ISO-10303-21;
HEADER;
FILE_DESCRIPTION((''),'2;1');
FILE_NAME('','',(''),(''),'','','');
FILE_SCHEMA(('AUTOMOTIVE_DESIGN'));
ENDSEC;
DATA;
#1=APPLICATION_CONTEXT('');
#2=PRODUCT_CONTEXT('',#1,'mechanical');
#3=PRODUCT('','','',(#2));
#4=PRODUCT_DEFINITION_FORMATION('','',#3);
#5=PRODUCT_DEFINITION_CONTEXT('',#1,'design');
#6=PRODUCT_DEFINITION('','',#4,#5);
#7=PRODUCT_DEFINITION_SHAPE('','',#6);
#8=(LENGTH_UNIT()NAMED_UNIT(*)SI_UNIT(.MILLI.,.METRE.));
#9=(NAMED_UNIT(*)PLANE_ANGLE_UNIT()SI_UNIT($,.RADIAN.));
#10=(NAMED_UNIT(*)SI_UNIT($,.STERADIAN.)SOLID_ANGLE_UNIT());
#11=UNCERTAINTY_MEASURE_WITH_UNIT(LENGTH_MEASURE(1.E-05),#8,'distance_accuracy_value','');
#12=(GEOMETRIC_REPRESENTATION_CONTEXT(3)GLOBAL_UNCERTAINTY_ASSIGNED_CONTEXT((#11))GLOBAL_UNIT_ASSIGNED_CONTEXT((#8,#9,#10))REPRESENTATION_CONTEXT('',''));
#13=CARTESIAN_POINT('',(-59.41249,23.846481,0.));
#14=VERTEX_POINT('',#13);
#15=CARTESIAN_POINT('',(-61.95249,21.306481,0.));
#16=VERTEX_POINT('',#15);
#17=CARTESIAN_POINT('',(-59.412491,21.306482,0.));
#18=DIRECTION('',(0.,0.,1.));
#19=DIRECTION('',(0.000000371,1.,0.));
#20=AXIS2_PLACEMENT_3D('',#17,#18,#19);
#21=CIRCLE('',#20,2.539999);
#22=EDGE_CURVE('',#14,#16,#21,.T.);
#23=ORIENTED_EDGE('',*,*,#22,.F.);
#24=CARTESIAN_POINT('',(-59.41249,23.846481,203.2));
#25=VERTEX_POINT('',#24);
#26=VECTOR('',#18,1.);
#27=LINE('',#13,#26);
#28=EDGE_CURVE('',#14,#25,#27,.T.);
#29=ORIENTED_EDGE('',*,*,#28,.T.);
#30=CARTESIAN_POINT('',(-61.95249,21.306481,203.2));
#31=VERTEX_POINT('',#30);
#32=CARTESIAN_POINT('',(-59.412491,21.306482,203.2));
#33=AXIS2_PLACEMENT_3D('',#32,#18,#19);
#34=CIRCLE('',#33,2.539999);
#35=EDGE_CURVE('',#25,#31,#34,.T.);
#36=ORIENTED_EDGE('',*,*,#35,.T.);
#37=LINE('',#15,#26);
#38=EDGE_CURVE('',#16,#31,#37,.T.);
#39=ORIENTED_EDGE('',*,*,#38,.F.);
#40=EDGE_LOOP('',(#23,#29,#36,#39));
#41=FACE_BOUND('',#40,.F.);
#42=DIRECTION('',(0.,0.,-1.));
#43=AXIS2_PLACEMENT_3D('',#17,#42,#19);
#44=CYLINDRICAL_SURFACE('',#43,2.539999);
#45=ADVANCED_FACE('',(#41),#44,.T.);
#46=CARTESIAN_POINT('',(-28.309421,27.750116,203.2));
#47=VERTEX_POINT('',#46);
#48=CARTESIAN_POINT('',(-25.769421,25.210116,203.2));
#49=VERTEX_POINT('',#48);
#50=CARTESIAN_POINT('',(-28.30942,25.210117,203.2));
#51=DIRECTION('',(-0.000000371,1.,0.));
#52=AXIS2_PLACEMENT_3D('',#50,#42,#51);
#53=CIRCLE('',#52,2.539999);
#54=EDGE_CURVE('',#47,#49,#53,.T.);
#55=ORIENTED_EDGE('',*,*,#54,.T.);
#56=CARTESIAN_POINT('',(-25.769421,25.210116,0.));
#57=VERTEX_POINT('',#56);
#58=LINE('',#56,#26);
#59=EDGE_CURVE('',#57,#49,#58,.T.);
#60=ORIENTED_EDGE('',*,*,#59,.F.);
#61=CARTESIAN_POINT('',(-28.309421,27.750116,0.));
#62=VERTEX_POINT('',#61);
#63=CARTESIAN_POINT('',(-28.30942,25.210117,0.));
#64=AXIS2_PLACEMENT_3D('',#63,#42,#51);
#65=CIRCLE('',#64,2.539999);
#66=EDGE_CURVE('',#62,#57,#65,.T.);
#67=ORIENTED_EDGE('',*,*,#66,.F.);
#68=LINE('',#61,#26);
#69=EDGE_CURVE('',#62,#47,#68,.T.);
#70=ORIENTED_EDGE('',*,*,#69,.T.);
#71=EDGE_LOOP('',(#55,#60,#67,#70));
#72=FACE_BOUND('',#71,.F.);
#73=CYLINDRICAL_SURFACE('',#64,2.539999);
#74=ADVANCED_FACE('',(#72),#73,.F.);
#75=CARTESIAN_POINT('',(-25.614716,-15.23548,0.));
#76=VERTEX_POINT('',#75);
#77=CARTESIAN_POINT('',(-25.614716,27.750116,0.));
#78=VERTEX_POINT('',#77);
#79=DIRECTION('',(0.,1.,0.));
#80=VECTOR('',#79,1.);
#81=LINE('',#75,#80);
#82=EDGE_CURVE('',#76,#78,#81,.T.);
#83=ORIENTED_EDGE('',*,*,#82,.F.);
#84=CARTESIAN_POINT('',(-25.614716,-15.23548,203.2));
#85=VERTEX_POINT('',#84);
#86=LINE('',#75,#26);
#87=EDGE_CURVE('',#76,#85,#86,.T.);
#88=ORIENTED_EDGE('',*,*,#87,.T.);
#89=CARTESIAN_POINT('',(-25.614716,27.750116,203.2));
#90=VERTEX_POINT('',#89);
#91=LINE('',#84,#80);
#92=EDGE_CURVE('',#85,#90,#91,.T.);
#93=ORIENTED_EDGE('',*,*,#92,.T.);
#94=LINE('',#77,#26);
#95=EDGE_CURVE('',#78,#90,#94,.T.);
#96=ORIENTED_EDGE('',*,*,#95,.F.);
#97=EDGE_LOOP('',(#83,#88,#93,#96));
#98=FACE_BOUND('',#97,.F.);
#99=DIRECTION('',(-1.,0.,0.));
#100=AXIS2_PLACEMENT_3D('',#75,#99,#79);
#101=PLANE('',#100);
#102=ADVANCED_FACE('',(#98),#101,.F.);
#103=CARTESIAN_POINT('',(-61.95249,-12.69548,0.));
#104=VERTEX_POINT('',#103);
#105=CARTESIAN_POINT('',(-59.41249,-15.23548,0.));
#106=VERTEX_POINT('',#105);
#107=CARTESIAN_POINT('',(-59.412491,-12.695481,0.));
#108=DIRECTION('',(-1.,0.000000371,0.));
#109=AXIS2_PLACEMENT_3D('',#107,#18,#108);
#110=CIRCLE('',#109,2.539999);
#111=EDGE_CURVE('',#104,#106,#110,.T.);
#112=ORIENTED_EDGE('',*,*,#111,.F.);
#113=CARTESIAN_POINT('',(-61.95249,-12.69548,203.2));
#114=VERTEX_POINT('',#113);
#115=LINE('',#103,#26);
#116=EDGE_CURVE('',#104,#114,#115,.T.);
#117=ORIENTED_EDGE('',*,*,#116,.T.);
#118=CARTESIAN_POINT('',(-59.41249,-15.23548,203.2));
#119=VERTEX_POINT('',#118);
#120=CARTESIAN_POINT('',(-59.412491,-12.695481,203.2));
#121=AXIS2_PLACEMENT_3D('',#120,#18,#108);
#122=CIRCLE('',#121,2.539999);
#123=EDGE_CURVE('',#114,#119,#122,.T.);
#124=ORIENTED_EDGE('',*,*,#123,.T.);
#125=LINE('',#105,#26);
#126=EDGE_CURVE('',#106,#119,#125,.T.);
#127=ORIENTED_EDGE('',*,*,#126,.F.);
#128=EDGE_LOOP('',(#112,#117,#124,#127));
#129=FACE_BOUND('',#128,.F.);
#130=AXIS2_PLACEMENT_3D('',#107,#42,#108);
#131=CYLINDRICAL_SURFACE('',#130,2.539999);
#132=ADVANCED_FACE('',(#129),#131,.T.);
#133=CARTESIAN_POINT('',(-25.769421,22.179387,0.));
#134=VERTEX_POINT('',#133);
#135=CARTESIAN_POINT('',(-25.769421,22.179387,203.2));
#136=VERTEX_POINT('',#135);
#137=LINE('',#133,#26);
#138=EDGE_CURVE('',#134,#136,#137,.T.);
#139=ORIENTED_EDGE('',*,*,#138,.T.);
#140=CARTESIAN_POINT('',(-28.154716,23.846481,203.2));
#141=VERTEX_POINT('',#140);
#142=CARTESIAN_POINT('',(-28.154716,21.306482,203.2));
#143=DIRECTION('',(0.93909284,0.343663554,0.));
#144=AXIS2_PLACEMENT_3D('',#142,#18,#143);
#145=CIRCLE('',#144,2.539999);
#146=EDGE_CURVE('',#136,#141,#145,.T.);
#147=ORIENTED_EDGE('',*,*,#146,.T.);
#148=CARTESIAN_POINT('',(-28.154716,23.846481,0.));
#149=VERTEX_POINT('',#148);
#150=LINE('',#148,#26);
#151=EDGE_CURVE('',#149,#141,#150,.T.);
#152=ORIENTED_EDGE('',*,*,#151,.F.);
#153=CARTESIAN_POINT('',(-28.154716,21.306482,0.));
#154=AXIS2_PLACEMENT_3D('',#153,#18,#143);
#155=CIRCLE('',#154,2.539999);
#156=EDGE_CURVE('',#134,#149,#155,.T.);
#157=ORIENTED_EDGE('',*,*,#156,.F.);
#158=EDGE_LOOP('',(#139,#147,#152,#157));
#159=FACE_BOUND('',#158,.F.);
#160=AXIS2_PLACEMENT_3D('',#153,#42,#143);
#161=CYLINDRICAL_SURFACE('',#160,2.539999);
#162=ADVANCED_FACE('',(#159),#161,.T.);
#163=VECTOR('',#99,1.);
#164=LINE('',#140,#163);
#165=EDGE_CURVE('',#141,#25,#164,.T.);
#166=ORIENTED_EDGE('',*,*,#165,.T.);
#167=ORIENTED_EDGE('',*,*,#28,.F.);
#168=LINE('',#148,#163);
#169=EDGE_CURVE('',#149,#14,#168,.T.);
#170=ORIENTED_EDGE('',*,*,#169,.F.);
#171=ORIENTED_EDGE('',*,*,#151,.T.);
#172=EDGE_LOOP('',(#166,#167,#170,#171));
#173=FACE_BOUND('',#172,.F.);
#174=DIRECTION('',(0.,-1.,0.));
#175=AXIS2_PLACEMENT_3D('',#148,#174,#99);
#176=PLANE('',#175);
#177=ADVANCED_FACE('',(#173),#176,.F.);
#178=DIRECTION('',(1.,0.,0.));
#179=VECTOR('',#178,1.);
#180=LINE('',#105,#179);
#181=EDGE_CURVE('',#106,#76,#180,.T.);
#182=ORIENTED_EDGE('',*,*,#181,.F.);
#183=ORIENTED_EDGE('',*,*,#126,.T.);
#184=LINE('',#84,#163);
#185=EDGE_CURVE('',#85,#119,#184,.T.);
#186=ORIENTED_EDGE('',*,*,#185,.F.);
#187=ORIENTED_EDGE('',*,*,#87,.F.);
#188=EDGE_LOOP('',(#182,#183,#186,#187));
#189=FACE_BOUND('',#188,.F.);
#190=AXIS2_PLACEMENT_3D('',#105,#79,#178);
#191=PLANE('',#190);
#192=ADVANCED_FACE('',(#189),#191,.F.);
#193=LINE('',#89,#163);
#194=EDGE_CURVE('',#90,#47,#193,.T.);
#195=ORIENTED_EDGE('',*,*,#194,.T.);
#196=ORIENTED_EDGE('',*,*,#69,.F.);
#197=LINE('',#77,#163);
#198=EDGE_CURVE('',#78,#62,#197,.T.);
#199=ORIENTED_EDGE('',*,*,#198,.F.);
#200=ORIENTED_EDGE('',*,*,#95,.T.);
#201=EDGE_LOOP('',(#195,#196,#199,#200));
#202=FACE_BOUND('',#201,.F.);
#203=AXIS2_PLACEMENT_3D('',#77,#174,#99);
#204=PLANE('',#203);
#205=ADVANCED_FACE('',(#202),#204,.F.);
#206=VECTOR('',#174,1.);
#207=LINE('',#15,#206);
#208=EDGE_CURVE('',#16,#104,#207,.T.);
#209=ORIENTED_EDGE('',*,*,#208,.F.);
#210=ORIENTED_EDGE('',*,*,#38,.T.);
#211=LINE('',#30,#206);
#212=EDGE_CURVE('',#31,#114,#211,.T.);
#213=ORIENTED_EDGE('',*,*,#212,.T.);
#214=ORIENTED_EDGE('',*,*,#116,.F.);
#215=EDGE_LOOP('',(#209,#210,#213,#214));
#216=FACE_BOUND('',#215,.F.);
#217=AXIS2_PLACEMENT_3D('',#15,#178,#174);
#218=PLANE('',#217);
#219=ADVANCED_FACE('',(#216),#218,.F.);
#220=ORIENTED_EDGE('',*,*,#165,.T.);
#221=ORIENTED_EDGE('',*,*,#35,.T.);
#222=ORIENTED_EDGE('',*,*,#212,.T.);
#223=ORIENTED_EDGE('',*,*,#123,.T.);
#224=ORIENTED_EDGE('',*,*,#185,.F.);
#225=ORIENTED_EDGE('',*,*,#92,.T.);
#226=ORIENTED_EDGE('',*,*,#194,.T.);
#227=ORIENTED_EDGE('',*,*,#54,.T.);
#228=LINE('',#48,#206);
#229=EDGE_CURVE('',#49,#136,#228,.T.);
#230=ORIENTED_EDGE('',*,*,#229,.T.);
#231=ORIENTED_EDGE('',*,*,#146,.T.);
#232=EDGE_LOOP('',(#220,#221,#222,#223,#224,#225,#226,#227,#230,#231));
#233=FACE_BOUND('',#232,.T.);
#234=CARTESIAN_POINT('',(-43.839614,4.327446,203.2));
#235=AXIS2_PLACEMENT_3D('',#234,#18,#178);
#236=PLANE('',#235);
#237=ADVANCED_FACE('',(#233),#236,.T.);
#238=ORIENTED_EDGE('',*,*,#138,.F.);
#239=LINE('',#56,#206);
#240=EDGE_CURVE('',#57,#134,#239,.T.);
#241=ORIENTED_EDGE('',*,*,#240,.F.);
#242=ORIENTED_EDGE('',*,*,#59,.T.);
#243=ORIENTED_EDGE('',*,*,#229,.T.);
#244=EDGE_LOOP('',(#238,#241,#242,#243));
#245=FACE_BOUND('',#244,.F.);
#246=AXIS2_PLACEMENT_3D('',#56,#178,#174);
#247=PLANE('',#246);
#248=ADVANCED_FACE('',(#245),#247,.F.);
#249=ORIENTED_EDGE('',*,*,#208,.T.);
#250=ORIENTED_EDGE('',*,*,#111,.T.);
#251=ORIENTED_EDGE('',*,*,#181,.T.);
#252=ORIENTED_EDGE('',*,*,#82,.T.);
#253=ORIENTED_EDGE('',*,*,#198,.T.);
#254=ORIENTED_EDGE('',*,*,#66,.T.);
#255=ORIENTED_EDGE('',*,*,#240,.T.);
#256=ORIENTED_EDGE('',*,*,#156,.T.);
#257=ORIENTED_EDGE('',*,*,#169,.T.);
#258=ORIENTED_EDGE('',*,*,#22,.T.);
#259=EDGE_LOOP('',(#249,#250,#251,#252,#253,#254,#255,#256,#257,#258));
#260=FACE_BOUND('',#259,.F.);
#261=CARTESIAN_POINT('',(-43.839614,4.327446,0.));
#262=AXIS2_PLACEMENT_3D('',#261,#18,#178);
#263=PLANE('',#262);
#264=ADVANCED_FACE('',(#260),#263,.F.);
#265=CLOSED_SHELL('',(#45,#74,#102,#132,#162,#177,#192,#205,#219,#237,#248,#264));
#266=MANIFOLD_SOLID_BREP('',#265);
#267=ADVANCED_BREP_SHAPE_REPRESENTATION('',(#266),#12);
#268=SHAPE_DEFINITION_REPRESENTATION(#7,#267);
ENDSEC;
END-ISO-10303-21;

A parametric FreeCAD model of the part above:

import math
import FreeCAD as App
import Part
import Sketcher
Q = App.Units.Quantity

doc = App.newDocument("Part")
body = doc.addObject("PartDesign::Body", "Body")

# Sketch on XY plane
sketch1 = body.newObject("Sketcher::SketchObject", "Sketch")
sketch1.AttachmentSupport = (doc.getObject("XY_Plane"), [""])
sketch1.MapMode = "FlatFace"
sketch1.addGeometry(Part.ArcOfCircle(Part.Circle(App.Vector(-59.4, -12.7, 0), App.Vector(0, 0, 1), 2.5), math.radians(180), math.radians(270)), False)
sketch1.addGeometry(Part.LineSegment(App.Vector(-59.4, -15.2, 0), App.Vector(-28.3, -15.2, 0)), False)
sketch1.addGeometry(Part.ArcOfCircle(Part.Circle(App.Vector(-28.3, -12.7, 0), App.Vector(0, 0, 1), 2.5), math.radians(-90), math.radians(0)), False)
sketch1.addGeometry(Part.LineSegment(App.Vector(-25.8, -12.7, 0), App.Vector(-25.8, 22.2, 0)), False)
sketch1.addGeometry(Part.ArcOfCircle(Part.Circle(App.Vector(-28.2, 21.3, 0), App.Vector(0, 0, 1), 2.5), math.radians(20), math.radians(90)), False)
sketch1.addGeometry(Part.LineSegment(App.Vector(-28.2, 23.8, 0), App.Vector(-59.4, 23.8, 0)), False)
sketch1.addGeometry(Part.ArcOfCircle(Part.Circle(App.Vector(-59.4, 21.3, 0), App.Vector(0, 0, 1), 2.5), math.radians(90), math.radians(180)), False)
sketch1.addGeometry(Part.LineSegment(App.Vector(-62, 21.3, 0), App.Vector(-62, -12.7, 0)), False)
sketch1.addConstraint(Sketcher.Constraint("Tangent", 0, 2, 1, 1))
sketch1.addConstraint(Sketcher.Constraint("Tangent", 1, 2, 2, 1))
sketch1.addConstraint(Sketcher.Constraint("Tangent", 2, 2, 3, 1))
sketch1.addConstraint(Sketcher.Constraint("Coincident", 3, 2, 4, 1))
sketch1.addConstraint(Sketcher.Constraint("Tangent", 4, 2, 5, 1))
sketch1.addConstraint(Sketcher.Constraint("Tangent", 5, 2, 6, 1))
sketch1.addConstraint(Sketcher.Constraint("Tangent", 6, 2, 7, 1))
sketch1.addConstraint(Sketcher.Constraint("Tangent", 7, 2, 0, 1))
sketch1.addConstraint(Sketcher.Constraint("Horizontal", 1))
sketch1.addConstraint(Sketcher.Constraint("Vertical", 3))
sketch1.addConstraint(Sketcher.Constraint("Horizontal", 5))
sketch1.addConstraint(Sketcher.Constraint("Vertical", 7))
sketch1.addConstraint(Sketcher.Constraint("Equal", 0, 2))
sketch1.addConstraint(Sketcher.Constraint("Equal", 2, 4))
sketch1.addConstraint(Sketcher.Constraint("Equal", 4, 6))
sketch1.addConstraint(Sketcher.Constraint("Radius", 0, Q("0.1 in")))
sketch1.addConstraint(Sketcher.Constraint("DistanceX", 1, 1, 1, 2, 31.103069))
sketch1.addConstraint(Sketcher.Constraint("DistanceY", 7, 2, 7, 1, 34.001961))
sketch1.addConstraint(Sketcher.Constraint("DistanceX", 5, 2, 5, 1, 31.257774))
sketch1.addConstraint(Sketcher.Constraint("DistanceX", 0, 3, -1, 1, 59.412491))
sketch1.addConstraint(Sketcher.Constraint("DistanceY", 0, 3, -1, 1, 12.695481))
pad1 = body.newObject("PartDesign::Pad", "Pad")
pad1.Profile = sketch1
pad1.Length = Q("8 in")

# Sketch on XY plane
sketch2 = body.newObject("Sketcher::SketchObject", "Sketch001")
sketch2.AttachmentSupport = (doc.getObject("XY_Plane"), [""])
sketch2.MapMode = "FlatFace"
sketch2.addGeometry(Part.ArcOfCircle(Part.Circle(App.Vector(-59.4, -12.7, 0), App.Vector(0, 0, 1), 2.5), math.radians(180), math.radians(270)), False)
sketch2.addGeometry(Part.LineSegment(App.Vector(-59.4, -15.2, 0), App.Vector(-25.6, -15.2, 0)), False)
sketch2.addGeometry(Part.LineSegment(App.Vector(-25.6, -15.2, 0), App.Vector(-25.6, 27.8, 0)), False)
sketch2.addGeometry(Part.LineSegment(App.Vector(-25.6, 27.8, 0), App.Vector(-28.3, 27.8, 0)), False)
sketch2.addGeometry(Part.ArcOfCircle(Part.Circle(App.Vector(-28.3, 25.2, 0), App.Vector(0, 0, 1), 2.5), math.radians(0), math.radians(90)), False)
sketch2.addGeometry(Part.LineSegment(App.Vector(-25.8, 25.2, 0), App.Vector(-25.8, 22.2, 0)), False)
sketch2.addGeometry(Part.ArcOfCircle(Part.Circle(App.Vector(-28.2, 21.3, 0), App.Vector(0, 0, 1), 2.5), math.radians(20), math.radians(90)), False)
sketch2.addGeometry(Part.LineSegment(App.Vector(-28.2, 23.8, 0), App.Vector(-59.4, 23.8, 0)), False)
sketch2.addGeometry(Part.ArcOfCircle(Part.Circle(App.Vector(-59.4, 21.3, 0), App.Vector(0, 0, 1), 2.5), math.radians(90), math.radians(180)), False)
sketch2.addGeometry(Part.LineSegment(App.Vector(-62, 21.3, 0), App.Vector(-62, -12.7, 0)), False)
sketch2.addConstraint(Sketcher.Constraint("Tangent", 0, 2, 1, 1))
sketch2.addConstraint(Sketcher.Constraint("Coincident", 1, 2, 2, 1))
sketch2.addConstraint(Sketcher.Constraint("Coincident", 2, 2, 3, 1))
sketch2.addConstraint(Sketcher.Constraint("Tangent", 3, 2, 4, 2))
sketch2.addConstraint(Sketcher.Constraint("Tangent", 4, 1, 5, 1))
sketch2.addConstraint(Sketcher.Constraint("Coincident", 5, 2, 6, 1))
sketch2.addConstraint(Sketcher.Constraint("Tangent", 6, 2, 7, 1))
sketch2.addConstraint(Sketcher.Constraint("Tangent", 7, 2, 8, 1))
sketch2.addConstraint(Sketcher.Constraint("Tangent", 8, 2, 9, 1))
sketch2.addConstraint(Sketcher.Constraint("Tangent", 9, 2, 0, 1))
sketch2.addConstraint(Sketcher.Constraint("Horizontal", 1))
sketch2.addConstraint(Sketcher.Constraint("Vertical", 2))
sketch2.addConstraint(Sketcher.Constraint("Horizontal", 3))
sketch2.addConstraint(Sketcher.Constraint("Vertical", 5))
sketch2.addConstraint(Sketcher.Constraint("Horizontal", 7))
sketch2.addConstraint(Sketcher.Constraint("Vertical", 9))
sketch2.addConstraint(Sketcher.Constraint("Equal", 0, 4))
sketch2.addConstraint(Sketcher.Constraint("Equal", 4, 6))
sketch2.addConstraint(Sketcher.Constraint("Equal", 6, 8))
sketch2.addConstraint(Sketcher.Constraint("Radius", 0, Q("0.1 in")))
sketch2.addConstraint(Sketcher.Constraint("DistanceX", 6, 3, 1, 2, Q("0.1 in")))
sketch2.addConstraint(Sketcher.Constraint("DistanceY", 5, 2, 5, 1, 3.030729))
sketch2.addConstraint(Sketcher.Constraint("DistanceY", 9, 2, 9, 1, 34.001961))
sketch2.addConstraint(Sketcher.Constraint("DistanceX", 1, 1, 1, 2, 33.797774))
sketch2.addConstraint(Sketcher.Constraint("DistanceX", 3, 2, 3, 1, 2.694705))
sketch2.addConstraint(Sketcher.Constraint("DistanceX", 0, 3, -1, 1, 59.412491))
sketch2.addConstraint(Sketcher.Constraint("DistanceY", 0, 3, -1, 1, 12.695481))
pad2 = body.newObject("PartDesign::Pad", "Pad001")
pad2.Profile = sketch2
pad2.Length = Q("8 in")

doc.recompute()
